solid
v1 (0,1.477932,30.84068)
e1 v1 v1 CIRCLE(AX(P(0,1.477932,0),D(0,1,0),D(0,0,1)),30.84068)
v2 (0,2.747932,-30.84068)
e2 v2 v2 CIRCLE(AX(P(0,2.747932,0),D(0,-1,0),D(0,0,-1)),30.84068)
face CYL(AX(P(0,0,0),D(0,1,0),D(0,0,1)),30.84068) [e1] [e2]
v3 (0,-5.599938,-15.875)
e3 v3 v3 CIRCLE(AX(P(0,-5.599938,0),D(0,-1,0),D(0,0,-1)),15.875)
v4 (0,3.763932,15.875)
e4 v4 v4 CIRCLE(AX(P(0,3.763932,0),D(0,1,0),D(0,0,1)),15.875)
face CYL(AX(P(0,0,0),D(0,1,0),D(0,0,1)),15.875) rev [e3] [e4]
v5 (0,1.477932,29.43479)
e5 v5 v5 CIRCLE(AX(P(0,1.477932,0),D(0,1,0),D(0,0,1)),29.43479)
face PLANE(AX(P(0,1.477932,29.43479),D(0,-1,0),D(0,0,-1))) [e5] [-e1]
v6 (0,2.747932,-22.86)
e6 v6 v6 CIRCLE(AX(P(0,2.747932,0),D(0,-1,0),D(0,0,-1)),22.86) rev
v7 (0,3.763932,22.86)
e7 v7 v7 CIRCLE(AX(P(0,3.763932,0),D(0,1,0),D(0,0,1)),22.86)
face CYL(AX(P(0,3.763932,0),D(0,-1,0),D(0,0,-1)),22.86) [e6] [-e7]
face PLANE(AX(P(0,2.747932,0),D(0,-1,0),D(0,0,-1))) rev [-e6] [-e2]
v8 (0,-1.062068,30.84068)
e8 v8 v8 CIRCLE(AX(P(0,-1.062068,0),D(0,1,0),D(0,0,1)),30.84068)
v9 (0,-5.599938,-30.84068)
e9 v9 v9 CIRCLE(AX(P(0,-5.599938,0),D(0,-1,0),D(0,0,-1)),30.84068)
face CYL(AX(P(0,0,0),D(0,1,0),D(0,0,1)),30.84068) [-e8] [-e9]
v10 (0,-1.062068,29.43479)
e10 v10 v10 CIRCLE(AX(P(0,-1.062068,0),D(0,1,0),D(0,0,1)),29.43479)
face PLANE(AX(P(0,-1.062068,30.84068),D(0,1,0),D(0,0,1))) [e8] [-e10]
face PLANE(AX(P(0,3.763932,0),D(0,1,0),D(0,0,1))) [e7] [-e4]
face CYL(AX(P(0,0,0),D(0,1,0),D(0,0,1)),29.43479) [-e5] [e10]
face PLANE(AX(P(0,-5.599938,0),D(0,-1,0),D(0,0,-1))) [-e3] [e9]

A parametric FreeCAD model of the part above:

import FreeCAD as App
import Part
import Sketcher
from FreeCAD import Vector
Q = App.Units.Quantity


def add_polygon(sketch, points):
    """Adds a closed chain of lines whose ends are joined by coincident constraints."""
    first, n = sketch.GeometryCount, len(points)
    for a, b in zip(points, points[1:] + points[:1]):
        sketch.addGeometry(Part.LineSegment(App.Vector(*a, 0), App.Vector(*b, 0)), False)
    for i in range(n):
        sketch.addConstraint(Sketcher.Constraint("Coincident", first + i, 2, first + (i + 1) % n, 1))

doc = App.newDocument("Part")
body = doc.addObject("PartDesign::Body", "Body")

# Sketch on YZ plane
sketch1 = body.newObject("Sketcher::SketchObject", "Sketch")
sketch1.AttachmentSupport = (doc.getObject("YZ_Plane"), [""])
sketch1.MapMode = "FlatFace"
add_polygon(sketch1, [(-5.020818, 15.875), (2.694084, 15.875), (2.694084, 30.84068), (1.477932, 30.84068), (1.477932, 29.43479), (-1.062068, 29.43479), (-1.062068, 30.84068), (-5.020818, 30.84068)])  # lines 0-7
sketch1.addConstraint([
    Sketcher.Constraint("Horizontal", 0),
    Sketcher.Constraint("Vertical", 1),
    Sketcher.Constraint("Horizontal", 2),
    Sketcher.Constraint("Vertical", 3),
    Sketcher.Constraint("Horizontal", 4),
    Sketcher.Constraint("Vertical", 5),
    Sketcher.Constraint("Horizontal", 6),
    Sketcher.Constraint("Vertical", 7),
    Sketcher.Constraint("Horizontal", 2, 2, 5, 2),
    Sketcher.Constraint("DistanceX", 4, 2, 4, 1, Q("0.1 in")),
    Sketcher.Constraint("DistanceY", 1, 1, 1, 2, Q("0.5892 in")),
    Sketcher.Constraint("DistanceY", -1, 1, 0, 2, Q("0.625 in")),
    Sketcher.Constraint("DistanceX", 6, 2, 6, 1, 3.95875),
    Sketcher.Constraint("DistanceY", 3, 2, 3, 1, 1.40589),
    Sketcher.Constraint("DistanceX", 0, 1, 0, 2, 7.714902),
    Sketcher.Constraint("DistanceX", 6, 2, -1, 1, 5.020818),
])
revolution = body.newObject("PartDesign::Revolution", "Revolution")
revolution.Profile = sketch1
revolution.ReferenceAxis = (sketch1, ["H_Axis"])
revolution.Angle = 360

# Sketch on XZ plane
sketch2 = body.newObject("Sketcher::SketchObject", "Sketch001")
sketch2.AttachmentSupport = (doc.getObject("XZ_Plane"), [""])
sketch2.MapMode = "FlatFace"
sketch2.AttachmentOffset = App.Placement(Vector(0, 0, -2.747932), App.Rotation())
sketch2.addGeometry([
    Part.Circle(Vector(0, 0, 0), Vector(0, 0, 1), 30.84068),
    Part.Circle(Vector(0, 0, 0), Vector(0, 0, 1), 15.875),
], False)
sketch2.addConstraint([
    Sketcher.Constraint("Coincident", 0, 3, -1, 1),
    Sketcher.Constraint("Coincident", 1, 3, -1, 1),
    Sketcher.Constraint("Diameter", 1, Q("1.25 in")),
    Sketcher.Constraint("Diameter", 0, Q("2.4284 in")),
])
pad1 = body.newObject("PartDesign::Pad", "Pad")
pad1.Profile = sketch2
pad1.Length = 0.053848

# Sketch on XZ plane
sketch3 = body.newObject("Sketcher::SketchObject", "Sketch002")
sketch3.AttachmentSupport = (doc.getObject("XZ_Plane"), [""])
sketch3.MapMode = "FlatFace"
sketch3.AttachmentOffset = App.Placement(Vector(0, 0, -2.747932), App.Rotation())
sketch3.addGeometry([
    Part.Circle(Vector(0, 0, 0), Vector(0, 0, 1), 22.86),
    Part.Circle(Vector(0, 0, 0), Vector(0, 0, 1), 15.875),
], False)
sketch3.addConstraint([
    Sketcher.Constraint("Coincident", 0, 3, -1, 1),
    Sketcher.Constraint("Coincident", 1, 3, -1, 1),
    Sketcher.Constraint("Diameter", 0, Q("1.8 in")),
    Sketcher.Constraint("Diameter", 1, Q("1.25 in")),
])
pad2 = body.newObject("PartDesign::Pad", "Pad001")
pad2.Profile = sketch3
pad2.Length = Q("0.04 in")
pad2.Reversed = True

# Sketch on XZ plane
sketch4 = body.newObject("Sketcher::SketchObject", "Sketch003")
sketch4.AttachmentSupport = (doc.getObject("XZ_Plane"), [""])
sketch4.MapMode = "FlatFace"
sketch4.AttachmentOffset = App.Placement(Vector(0, 0, 5.020818), App.Rotation())
sketch4.addGeometry([
    Part.Circle(Vector(0, 0, 0), Vector(0, 0, 1), 30.84068),
    Part.Circle(Vector(0, 0, 0), Vector(0, 0, 1), 15.875),
], False)
sketch4.addConstraint([
    Sketcher.Constraint("Coincident", 0, 3, -1, 1),
    Sketcher.Constraint("Coincident", 1, 3, -1, 1),
    Sketcher.Constraint("Diameter", 1, Q("1.25 in")),
    Sketcher.Constraint("Diameter", 0, Q("2.4284 in")),
])
pad3 = body.newObject("PartDesign::Pad", "Pad002")
pad3.Profile = sketch4
pad3.Length = Q("0.0228 in")

doc.recompute()
